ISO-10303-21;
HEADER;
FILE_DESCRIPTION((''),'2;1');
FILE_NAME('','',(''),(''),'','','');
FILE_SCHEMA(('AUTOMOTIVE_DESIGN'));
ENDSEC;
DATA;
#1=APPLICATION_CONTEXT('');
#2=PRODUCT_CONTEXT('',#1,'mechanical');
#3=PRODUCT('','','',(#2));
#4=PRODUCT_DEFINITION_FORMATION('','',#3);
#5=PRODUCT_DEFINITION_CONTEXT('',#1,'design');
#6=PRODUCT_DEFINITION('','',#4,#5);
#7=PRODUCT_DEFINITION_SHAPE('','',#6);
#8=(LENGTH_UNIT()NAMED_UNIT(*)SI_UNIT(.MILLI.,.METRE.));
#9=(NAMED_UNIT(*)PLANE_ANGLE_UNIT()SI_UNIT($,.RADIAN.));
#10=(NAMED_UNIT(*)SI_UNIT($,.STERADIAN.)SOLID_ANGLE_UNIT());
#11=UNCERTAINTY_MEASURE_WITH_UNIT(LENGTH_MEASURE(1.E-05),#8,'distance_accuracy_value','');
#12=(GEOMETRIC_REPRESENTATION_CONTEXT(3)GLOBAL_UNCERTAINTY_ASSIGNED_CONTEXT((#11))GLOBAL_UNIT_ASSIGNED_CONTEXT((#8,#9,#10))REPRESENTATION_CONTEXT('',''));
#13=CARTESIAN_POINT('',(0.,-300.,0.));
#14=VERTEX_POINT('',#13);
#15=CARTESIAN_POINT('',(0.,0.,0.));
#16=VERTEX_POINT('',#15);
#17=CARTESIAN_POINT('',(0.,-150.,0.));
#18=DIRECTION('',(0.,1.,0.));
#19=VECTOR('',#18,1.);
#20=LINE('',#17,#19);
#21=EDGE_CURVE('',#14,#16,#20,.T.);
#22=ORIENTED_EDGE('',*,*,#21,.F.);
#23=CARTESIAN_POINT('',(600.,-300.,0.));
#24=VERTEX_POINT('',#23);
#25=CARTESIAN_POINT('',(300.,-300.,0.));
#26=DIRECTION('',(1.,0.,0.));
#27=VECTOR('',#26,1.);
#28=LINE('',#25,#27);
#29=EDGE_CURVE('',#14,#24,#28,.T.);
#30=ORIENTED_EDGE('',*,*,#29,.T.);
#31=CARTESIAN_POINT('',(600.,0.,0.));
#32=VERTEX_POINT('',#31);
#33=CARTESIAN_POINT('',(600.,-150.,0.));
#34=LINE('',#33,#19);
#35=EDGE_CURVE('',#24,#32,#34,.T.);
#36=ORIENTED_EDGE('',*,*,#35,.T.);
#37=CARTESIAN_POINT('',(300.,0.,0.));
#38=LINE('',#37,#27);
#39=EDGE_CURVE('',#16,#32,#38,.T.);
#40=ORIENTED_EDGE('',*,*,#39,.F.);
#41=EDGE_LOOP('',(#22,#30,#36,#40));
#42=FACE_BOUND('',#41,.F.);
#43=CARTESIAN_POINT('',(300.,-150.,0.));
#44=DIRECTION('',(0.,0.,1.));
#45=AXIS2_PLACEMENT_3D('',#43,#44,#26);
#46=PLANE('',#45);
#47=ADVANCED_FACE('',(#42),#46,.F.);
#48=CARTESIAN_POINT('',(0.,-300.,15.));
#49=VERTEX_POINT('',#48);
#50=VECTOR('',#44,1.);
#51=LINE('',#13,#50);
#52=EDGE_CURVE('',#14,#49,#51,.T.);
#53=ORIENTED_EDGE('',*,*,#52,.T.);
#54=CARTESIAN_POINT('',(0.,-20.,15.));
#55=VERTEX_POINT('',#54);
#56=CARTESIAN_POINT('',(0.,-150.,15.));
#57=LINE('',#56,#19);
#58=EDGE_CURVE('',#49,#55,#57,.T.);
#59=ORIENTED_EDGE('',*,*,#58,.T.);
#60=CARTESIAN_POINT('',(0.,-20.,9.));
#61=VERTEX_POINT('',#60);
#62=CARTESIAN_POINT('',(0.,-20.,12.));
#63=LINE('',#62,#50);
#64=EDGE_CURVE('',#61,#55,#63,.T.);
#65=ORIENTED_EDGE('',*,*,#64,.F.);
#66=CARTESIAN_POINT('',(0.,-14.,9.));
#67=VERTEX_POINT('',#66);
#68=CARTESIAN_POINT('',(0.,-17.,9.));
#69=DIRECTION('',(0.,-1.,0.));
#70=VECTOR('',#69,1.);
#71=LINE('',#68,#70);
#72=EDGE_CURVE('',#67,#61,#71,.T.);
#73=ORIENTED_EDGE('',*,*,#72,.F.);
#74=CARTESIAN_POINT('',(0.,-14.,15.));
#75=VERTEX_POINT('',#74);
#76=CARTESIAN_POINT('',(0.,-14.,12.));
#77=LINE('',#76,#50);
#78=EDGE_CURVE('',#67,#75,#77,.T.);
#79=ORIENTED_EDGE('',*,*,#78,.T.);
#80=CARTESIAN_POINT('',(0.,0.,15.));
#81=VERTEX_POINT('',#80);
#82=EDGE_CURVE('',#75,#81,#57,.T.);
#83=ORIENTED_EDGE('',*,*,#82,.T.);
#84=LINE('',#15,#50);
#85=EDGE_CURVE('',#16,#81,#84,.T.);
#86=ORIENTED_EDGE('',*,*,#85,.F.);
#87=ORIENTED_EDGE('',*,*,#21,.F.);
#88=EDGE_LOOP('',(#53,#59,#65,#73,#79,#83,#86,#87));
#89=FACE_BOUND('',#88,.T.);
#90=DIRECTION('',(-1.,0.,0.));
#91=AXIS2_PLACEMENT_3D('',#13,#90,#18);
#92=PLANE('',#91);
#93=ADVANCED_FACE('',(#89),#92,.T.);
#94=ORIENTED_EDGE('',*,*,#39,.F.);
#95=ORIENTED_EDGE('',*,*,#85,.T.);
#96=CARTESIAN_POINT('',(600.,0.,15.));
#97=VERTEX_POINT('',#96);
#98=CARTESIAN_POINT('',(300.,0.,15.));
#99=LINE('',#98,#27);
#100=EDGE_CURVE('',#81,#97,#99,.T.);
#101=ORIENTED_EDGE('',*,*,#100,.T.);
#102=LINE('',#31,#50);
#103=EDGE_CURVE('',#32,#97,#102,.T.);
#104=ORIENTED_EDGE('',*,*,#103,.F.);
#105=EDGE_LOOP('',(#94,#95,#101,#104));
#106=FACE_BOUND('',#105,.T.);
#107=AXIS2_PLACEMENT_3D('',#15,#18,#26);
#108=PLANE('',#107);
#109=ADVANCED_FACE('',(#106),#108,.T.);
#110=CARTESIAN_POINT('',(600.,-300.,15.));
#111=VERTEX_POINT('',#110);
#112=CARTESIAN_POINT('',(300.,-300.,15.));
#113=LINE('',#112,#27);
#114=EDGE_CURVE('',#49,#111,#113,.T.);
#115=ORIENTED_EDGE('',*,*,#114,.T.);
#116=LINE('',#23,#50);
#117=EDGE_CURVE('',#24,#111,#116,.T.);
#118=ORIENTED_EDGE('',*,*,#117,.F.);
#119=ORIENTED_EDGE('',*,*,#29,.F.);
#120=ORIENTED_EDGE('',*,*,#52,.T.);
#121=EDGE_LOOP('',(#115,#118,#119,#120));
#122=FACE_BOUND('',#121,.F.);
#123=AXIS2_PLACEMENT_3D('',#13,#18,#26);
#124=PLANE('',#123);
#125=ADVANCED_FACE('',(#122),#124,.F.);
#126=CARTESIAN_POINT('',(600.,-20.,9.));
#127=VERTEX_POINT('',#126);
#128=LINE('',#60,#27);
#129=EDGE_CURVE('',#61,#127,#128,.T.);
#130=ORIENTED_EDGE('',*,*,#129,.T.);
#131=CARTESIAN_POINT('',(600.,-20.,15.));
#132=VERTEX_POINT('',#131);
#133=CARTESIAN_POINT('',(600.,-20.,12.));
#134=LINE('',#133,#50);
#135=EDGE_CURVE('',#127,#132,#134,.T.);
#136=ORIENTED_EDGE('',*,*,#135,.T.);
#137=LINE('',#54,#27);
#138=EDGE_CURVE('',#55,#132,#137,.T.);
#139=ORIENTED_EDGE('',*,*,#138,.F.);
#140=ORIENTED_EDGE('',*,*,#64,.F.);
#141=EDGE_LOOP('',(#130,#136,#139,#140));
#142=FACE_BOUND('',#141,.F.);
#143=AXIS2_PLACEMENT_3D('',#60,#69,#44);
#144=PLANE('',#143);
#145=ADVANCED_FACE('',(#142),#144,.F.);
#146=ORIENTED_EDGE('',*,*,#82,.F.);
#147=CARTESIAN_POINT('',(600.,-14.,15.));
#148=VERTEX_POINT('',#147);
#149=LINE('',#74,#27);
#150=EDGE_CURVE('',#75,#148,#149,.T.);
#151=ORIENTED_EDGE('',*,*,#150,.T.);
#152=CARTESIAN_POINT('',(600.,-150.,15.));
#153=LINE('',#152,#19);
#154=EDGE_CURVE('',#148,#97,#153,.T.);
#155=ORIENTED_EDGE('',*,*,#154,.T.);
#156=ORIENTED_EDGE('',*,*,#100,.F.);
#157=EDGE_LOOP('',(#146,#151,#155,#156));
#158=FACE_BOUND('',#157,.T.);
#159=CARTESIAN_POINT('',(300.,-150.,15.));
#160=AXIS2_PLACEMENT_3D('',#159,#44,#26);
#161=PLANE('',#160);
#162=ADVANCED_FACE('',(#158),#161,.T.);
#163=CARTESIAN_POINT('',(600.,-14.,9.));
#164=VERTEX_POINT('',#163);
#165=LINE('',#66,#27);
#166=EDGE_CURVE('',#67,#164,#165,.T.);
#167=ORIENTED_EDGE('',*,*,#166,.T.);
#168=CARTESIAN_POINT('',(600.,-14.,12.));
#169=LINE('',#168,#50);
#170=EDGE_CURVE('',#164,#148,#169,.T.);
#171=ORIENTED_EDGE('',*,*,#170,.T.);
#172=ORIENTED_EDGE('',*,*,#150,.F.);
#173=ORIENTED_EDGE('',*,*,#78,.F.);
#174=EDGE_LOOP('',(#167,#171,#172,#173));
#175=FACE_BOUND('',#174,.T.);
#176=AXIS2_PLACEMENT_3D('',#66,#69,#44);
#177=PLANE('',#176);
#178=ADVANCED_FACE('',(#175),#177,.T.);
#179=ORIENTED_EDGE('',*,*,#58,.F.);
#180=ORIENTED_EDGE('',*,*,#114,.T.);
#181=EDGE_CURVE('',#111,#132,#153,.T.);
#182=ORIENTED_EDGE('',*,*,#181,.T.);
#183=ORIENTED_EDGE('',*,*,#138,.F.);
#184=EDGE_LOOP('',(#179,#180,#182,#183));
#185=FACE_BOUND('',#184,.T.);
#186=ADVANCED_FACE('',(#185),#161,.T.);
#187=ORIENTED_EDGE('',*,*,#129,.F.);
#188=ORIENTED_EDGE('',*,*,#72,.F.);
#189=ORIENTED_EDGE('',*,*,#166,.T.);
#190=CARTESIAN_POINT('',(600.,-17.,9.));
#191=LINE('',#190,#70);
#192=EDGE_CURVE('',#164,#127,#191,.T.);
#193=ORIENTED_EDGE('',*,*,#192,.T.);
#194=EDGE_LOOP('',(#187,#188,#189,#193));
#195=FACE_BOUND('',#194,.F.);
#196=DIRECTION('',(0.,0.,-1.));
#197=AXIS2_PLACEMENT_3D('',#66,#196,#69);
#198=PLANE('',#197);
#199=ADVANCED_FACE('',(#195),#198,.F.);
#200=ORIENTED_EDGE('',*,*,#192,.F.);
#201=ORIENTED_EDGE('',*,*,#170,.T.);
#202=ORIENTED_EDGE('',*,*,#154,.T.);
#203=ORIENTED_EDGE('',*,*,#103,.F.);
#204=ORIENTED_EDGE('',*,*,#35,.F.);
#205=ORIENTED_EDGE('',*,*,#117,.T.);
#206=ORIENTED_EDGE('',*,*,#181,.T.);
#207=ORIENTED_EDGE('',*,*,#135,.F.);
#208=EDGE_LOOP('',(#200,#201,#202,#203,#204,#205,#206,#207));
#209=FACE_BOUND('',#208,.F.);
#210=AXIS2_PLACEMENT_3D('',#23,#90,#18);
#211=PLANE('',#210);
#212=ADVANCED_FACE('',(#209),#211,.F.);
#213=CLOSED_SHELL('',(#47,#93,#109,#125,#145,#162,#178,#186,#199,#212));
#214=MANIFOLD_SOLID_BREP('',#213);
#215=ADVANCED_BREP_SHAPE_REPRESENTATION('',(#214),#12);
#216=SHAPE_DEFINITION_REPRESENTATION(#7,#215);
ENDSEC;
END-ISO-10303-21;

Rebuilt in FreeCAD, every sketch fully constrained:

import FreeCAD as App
import Part
import Sketcher


def add_polygon(sketch, points):
    """Adds a closed chain of lines whose ends are joined by coincident constraints."""
    first, n = sketch.GeometryCount, len(points)
    for a, b in zip(points, points[1:] + points[:1]):
        sketch.addGeometry(Part.LineSegment(App.Vector(*a, 0), App.Vector(*b, 0)), False)
    for i in range(n):
        sketch.addConstraint(Sketcher.Constraint("Coincident", first + i, 2, first + (i + 1) % n, 1))

doc = App.newDocument("Part")
body = doc.addObject("PartDesign::Body", "Body")

# Sketch on XY plane
sketch1 = body.newObject("Sketcher::SketchObject", "Sketch")
sketch1.AttachmentSupport = (doc.getObject("XY_Plane"), [""])
sketch1.MapMode = "FlatFace"
add_polygon(sketch1, [(0, 0), (0, -300), (600, -300), (600, 0)])  # lines 0-3
sketch1.addConstraint([
    Sketcher.Constraint("Vertical", 0),
    Sketcher.Constraint("Horizontal", 1),
    Sketcher.Constraint("Vertical", 2),
    Sketcher.Constraint("Horizontal", 3),
    Sketcher.Constraint("Coincident", 3, 2, -1, 1),
    Sketcher.Constraint("DistanceX", 1, 1, 1, 2, 600.0),
    Sketcher.Constraint("DistanceY", 0, 2, 0, 1, 300.0),
])
pad1 = body.newObject("PartDesign::Pad", "Pad")
pad1.Profile = sketch1
pad1.Length = 15

# Sketch on YZ plane
sketch2 = body.newObject("Sketcher::SketchObject", "Sketch001")
sketch2.AttachmentSupport = (doc.getObject("YZ_Plane"), [""])
sketch2.MapMode = "FlatFace"
add_polygon(sketch2, [(-14, 15), (-14, 9), (-20, 9), (-20, 15)])  # lines 0-3
sketch2.addConstraint([
    Sketcher.Constraint("Vertical", 0),
    Sketcher.Constraint("Horizontal", 1),
    Sketcher.Constraint("Vertical", 2),
    Sketcher.Constraint("Horizontal", 3),
    Sketcher.Constraint("Equal", 3, 0),
    Sketcher.Constraint("DistanceX", 1, 2, 1, 1, 6.0),
    Sketcher.Constraint("DistanceX", 0, 2, -1, 1, 14.0),
    Sketcher.Constraint("DistanceY", -1, 1, 0, 2, 9.0),
])
pocket1 = body.newObject("PartDesign::Pocket", "Pocket")
pocket1.Profile = sketch2
pocket1.Length = 600
pocket1.Reversed = True

doc.recompute()
